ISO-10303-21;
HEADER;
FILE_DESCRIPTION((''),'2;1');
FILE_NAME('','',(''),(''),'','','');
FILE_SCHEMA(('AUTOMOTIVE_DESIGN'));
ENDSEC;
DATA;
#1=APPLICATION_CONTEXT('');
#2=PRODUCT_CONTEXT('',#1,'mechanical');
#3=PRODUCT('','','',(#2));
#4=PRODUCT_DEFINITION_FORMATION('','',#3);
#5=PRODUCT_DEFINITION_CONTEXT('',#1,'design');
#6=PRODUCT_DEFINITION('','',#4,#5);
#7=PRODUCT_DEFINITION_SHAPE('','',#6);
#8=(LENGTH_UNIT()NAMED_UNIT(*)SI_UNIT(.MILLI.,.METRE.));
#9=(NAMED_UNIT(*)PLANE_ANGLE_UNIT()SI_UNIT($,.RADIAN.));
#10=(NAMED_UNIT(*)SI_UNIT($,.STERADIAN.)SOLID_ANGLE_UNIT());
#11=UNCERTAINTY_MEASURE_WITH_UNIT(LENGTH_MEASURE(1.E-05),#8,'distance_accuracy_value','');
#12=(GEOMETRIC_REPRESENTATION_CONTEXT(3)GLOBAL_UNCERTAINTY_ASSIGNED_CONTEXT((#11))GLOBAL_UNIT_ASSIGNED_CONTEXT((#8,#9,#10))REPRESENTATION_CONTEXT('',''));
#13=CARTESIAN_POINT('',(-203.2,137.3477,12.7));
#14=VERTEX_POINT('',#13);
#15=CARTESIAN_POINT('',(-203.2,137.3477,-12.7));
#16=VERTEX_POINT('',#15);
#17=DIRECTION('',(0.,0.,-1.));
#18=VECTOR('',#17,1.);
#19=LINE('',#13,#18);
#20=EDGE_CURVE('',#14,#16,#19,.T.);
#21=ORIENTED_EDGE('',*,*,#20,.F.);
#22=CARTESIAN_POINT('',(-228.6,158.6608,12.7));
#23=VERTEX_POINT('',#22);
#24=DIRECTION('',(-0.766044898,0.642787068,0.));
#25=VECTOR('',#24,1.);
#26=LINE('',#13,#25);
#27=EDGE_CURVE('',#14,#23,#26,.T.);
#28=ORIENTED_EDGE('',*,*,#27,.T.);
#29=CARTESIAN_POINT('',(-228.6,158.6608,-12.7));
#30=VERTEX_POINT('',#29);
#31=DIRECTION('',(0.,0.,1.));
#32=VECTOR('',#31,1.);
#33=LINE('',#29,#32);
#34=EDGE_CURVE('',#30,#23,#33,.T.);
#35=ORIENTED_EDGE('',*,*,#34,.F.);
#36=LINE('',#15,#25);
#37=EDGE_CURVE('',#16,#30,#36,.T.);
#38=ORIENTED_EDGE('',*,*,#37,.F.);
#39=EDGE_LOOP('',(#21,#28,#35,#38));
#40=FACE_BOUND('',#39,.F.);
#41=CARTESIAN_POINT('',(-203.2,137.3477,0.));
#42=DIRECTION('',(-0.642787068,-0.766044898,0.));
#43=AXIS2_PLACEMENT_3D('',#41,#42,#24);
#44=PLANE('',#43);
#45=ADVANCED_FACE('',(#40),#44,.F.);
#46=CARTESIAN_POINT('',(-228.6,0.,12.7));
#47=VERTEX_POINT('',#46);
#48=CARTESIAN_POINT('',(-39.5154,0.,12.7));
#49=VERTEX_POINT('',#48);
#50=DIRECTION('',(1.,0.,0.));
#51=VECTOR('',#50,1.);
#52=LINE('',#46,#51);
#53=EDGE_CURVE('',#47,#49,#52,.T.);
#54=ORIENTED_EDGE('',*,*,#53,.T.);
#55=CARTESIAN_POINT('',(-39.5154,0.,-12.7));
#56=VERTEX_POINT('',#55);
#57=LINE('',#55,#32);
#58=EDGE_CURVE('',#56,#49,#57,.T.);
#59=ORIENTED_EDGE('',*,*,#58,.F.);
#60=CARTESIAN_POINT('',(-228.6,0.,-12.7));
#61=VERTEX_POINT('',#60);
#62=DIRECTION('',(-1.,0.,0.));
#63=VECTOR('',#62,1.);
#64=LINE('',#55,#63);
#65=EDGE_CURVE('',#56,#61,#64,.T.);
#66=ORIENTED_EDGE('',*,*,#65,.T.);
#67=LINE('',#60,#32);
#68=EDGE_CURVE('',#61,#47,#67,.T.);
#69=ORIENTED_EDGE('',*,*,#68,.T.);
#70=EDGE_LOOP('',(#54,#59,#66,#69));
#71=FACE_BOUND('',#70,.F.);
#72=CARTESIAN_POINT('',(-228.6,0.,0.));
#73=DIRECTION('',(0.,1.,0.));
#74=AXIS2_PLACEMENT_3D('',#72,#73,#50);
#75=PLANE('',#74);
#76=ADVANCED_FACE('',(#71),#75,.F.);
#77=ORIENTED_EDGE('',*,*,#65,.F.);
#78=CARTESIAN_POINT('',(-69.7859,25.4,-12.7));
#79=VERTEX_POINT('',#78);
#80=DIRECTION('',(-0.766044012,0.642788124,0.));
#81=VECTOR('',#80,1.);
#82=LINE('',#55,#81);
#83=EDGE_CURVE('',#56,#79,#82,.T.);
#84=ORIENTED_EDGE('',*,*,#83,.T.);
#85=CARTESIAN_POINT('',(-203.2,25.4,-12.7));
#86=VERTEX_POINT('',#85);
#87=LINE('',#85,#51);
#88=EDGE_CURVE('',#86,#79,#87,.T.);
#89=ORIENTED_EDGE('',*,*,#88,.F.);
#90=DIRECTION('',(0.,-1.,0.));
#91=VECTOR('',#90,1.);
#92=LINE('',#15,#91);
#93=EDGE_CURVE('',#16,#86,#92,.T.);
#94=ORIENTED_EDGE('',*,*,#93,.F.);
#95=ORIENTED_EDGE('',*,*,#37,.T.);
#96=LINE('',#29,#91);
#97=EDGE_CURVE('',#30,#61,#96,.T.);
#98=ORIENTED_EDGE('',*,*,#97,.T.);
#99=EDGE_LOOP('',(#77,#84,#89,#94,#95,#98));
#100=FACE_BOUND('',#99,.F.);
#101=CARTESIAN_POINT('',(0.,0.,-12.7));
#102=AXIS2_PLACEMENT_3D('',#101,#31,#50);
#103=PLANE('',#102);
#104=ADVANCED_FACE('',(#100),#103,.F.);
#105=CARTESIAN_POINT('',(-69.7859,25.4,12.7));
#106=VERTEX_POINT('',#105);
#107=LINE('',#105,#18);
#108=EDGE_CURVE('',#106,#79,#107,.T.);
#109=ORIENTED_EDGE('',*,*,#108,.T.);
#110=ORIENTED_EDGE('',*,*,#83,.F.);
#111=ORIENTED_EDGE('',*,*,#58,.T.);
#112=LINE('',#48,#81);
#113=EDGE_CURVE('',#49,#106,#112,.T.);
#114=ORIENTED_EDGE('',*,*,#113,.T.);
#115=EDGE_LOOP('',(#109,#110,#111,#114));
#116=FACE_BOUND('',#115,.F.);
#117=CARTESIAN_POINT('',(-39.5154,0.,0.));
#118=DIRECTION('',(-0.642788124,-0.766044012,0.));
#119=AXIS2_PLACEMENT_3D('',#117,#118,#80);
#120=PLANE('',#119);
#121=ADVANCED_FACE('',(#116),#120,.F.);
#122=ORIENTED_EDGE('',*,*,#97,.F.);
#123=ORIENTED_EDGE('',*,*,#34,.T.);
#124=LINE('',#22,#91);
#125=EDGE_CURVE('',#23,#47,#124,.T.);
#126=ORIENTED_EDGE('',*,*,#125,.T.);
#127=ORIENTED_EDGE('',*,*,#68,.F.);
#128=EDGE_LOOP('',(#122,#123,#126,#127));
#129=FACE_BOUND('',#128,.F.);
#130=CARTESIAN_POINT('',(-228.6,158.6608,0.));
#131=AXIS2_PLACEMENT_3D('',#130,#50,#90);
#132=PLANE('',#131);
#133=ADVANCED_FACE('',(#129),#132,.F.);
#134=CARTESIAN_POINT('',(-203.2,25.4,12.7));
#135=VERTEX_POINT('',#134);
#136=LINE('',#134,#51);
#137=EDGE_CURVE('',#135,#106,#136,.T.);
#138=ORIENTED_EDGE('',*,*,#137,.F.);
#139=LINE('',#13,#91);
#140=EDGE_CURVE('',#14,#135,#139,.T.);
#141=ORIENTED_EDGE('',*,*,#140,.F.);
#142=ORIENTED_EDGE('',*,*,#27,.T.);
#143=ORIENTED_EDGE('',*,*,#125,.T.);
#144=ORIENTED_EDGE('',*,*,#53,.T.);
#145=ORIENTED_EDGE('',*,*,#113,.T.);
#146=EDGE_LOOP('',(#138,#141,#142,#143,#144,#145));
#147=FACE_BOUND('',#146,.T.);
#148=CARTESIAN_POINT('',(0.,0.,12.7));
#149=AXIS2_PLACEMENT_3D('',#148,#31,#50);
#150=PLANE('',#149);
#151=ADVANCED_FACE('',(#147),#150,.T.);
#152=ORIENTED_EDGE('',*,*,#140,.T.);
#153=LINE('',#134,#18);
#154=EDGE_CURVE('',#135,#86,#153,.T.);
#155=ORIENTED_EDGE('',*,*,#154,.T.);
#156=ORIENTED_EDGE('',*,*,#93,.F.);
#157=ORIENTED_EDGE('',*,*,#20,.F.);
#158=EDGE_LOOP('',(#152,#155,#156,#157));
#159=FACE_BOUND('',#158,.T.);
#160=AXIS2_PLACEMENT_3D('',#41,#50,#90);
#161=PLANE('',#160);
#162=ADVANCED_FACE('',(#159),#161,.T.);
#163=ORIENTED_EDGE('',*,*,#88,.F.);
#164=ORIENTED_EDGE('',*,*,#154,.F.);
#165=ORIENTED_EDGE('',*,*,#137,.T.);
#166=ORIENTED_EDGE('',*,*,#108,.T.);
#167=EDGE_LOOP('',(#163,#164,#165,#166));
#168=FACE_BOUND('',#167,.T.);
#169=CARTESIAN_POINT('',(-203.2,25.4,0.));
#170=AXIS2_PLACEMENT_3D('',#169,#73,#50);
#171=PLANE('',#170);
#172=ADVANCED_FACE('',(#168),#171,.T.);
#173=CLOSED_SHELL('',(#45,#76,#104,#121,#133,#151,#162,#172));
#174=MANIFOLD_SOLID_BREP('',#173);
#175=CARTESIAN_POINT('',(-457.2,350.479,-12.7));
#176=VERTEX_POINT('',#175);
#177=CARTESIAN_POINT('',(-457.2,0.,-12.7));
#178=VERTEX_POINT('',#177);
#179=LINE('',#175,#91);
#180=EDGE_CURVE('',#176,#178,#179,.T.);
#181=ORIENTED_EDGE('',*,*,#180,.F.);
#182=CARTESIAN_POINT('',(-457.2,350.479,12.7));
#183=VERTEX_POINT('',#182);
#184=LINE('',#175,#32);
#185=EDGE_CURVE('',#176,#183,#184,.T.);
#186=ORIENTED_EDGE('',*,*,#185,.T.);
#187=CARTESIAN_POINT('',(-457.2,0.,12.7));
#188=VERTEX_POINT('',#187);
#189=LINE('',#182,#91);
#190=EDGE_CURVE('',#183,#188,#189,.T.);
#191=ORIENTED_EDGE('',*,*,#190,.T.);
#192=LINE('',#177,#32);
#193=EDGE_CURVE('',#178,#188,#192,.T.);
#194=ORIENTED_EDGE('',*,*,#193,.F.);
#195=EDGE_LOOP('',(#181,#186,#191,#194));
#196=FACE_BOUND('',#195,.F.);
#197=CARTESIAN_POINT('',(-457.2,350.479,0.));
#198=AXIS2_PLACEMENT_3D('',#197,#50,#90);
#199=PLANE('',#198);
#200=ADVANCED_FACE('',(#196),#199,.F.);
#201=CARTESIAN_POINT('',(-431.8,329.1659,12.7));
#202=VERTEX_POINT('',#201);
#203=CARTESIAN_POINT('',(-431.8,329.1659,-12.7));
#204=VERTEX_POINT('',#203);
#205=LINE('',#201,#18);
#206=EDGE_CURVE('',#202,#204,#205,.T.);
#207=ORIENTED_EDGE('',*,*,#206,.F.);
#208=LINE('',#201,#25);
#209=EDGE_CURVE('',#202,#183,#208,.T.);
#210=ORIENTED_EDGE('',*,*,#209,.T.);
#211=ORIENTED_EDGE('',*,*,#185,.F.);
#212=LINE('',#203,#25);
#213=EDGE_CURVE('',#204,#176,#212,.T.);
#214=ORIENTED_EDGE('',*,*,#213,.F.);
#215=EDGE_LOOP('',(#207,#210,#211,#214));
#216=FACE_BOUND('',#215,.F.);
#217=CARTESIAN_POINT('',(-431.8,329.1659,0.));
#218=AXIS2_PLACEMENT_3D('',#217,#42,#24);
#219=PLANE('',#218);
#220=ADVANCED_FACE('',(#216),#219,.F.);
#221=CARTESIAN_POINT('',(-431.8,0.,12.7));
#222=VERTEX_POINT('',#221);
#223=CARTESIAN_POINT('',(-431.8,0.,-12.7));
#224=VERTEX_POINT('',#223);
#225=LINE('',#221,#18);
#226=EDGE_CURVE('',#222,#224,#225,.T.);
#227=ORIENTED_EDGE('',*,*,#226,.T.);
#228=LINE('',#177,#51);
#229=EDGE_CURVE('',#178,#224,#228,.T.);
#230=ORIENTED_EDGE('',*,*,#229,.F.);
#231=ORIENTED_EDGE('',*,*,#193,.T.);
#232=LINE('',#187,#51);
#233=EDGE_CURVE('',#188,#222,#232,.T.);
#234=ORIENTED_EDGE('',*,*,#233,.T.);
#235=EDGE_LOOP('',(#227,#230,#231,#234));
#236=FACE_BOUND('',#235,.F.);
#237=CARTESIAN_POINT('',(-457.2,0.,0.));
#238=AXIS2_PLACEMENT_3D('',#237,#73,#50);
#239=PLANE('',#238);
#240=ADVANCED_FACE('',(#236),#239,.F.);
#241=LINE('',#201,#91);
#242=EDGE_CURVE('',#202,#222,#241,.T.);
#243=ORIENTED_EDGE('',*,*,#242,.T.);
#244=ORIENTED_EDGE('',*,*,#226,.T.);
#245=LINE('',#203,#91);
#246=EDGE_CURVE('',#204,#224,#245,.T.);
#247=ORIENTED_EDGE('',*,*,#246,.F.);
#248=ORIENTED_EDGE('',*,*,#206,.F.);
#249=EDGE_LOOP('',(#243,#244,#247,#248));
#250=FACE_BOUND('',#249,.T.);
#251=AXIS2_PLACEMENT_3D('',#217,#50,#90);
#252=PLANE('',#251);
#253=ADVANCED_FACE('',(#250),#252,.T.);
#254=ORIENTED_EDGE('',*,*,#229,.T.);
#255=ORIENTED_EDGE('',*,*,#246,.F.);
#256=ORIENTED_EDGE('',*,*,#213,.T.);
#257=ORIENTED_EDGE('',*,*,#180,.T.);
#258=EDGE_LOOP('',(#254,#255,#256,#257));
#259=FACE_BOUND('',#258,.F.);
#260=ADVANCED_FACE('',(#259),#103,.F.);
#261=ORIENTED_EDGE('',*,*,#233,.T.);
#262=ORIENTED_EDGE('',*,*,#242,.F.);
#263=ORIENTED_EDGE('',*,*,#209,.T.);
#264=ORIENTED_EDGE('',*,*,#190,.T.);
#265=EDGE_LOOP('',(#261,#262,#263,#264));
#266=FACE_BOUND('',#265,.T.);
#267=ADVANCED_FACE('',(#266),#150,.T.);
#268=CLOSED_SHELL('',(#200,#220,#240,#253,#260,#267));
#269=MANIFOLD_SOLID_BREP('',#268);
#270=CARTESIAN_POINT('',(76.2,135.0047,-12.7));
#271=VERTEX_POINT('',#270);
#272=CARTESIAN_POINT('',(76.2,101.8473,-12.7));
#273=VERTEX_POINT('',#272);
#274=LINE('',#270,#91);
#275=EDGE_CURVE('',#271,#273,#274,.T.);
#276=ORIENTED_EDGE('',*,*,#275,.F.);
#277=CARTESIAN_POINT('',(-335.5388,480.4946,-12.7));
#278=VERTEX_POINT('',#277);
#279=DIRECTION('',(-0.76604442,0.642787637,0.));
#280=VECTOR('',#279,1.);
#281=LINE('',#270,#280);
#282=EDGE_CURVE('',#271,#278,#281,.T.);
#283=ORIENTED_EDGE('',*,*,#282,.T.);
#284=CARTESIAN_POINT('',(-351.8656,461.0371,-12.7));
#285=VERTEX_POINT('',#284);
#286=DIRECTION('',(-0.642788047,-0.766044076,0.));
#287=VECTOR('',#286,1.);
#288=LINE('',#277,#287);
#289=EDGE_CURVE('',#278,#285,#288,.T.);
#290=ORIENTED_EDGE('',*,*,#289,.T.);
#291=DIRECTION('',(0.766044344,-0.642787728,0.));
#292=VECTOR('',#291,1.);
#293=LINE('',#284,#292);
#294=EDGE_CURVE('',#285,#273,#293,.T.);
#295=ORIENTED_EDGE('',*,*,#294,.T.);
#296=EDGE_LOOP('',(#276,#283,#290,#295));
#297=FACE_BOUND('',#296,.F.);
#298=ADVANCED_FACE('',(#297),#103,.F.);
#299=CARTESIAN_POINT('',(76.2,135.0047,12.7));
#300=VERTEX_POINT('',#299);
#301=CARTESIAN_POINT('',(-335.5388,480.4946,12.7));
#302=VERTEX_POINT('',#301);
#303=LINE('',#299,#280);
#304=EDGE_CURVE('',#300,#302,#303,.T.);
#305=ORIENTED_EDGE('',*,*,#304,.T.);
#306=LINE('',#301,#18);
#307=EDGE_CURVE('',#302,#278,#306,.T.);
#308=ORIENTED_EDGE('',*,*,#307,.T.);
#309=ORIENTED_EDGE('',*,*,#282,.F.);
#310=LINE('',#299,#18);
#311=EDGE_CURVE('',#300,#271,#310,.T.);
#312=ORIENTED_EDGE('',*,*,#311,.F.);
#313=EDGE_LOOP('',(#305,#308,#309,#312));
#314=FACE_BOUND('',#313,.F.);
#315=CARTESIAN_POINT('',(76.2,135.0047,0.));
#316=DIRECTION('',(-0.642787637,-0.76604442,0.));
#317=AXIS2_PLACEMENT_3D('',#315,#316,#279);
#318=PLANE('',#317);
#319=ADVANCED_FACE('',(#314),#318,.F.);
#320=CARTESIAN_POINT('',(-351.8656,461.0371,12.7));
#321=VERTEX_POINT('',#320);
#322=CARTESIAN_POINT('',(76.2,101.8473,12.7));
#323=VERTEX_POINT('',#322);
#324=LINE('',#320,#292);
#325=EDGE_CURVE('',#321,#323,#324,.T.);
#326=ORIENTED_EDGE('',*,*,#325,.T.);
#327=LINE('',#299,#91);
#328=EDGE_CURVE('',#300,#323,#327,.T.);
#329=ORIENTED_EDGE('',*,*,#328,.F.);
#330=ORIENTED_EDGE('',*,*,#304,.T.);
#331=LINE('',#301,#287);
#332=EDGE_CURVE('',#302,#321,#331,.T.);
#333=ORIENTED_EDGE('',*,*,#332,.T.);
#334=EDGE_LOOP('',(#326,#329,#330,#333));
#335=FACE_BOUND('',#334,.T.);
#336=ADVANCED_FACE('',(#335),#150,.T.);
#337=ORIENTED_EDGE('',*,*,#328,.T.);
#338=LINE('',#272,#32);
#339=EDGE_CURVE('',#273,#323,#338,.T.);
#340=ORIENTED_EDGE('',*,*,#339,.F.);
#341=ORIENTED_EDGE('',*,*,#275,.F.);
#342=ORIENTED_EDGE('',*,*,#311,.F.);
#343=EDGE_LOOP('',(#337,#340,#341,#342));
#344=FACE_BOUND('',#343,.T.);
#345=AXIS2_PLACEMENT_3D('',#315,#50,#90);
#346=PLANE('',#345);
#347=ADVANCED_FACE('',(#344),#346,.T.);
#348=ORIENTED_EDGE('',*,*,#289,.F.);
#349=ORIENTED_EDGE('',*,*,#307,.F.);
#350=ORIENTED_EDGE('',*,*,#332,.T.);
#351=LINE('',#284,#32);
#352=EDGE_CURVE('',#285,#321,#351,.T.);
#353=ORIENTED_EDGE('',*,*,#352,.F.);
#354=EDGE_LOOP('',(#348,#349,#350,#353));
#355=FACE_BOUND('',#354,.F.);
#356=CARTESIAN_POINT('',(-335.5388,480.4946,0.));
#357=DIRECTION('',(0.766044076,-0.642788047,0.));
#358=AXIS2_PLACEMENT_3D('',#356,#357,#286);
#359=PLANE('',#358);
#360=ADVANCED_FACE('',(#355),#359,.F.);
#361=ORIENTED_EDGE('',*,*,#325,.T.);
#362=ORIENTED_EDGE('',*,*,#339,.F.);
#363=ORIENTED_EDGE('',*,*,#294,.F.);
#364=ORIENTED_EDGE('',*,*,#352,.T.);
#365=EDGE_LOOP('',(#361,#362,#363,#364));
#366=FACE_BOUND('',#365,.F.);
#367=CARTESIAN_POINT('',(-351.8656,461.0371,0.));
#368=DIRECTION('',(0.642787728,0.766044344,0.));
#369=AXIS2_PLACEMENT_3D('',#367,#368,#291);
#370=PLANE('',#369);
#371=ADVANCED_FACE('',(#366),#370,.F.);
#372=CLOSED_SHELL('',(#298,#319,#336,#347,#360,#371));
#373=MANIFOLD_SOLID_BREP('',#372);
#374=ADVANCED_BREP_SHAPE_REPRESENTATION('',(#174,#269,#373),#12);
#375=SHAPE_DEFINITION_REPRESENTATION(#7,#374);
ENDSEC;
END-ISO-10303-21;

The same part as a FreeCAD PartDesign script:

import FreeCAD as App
import Part
import Sketcher
from FreeCAD import Vector
Q = App.Units.Quantity


def add_polygon(sketch, points):
    """Adds a closed chain of lines whose ends are joined by coincident constraints."""
    first, n = sketch.GeometryCount, len(points)
    for a, b in zip(points, points[1:] + points[:1]):
        sketch.addGeometry(Part.LineSegment(App.Vector(*a, 0), App.Vector(*b, 0)), False)
    for i in range(n):
        sketch.addConstraint(Sketcher.Constraint("Coincident", first + i, 2, first + (i + 1) % n, 1))

doc = App.newDocument("Part")
body = doc.addObject("PartDesign::Body", "Body")
body.AllowCompound = True

# Sketch on XY plane
sketch1 = body.newObject("Sketcher::SketchObject", "Sketch")
sketch1.AttachmentSupport = (doc.getObject("XY_Plane"), [""])
sketch1.MapMode = "FlatFace"
add_polygon(sketch1, [(-431.8, 329.1659), (-457.2, 350.479), (-457.2, 0), (-431.8, 0)])  # lines 0-3
add_polygon(sketch1, [(-203.2, 137.3477), (-228.6, 158.6608), (-228.6, 0), (-39.5154, 0), (-69.7859, 25.4), (-203.2, 25.4)])  # lines 4-9
add_polygon(sketch1, [(-335.5388, 480.4946), (-351.8656, 461.0371), (76.2, 101.8473), (76.2, 135.0047)])  # lines 10-13
sketch1.addConstraint([
    Sketcher.Constraint("Vertical", 1),
    Sketcher.Constraint("Horizontal", 2),
    Sketcher.Constraint("Vertical", 3),
    Sketcher.Constraint("Vertical", 5),
    Sketcher.Constraint("Horizontal", 6),
    Sketcher.Constraint("Horizontal", 8),
    Sketcher.Constraint("Vertical", 9),
    Sketcher.Constraint("Vertical", 12),
    Sketcher.Constraint("PointOnObject", 1, 2, -1),
    Sketcher.Constraint("PointOnObject", 5, 2, -1),
    Sketcher.Constraint("Parallel", 0, 4),
    Sketcher.Constraint("Parallel", 4, 7),
    Sketcher.Constraint("Perpendicular", 7, 10),
    Sketcher.Constraint("Perpendicular", 10, 11),
    Sketcher.Constraint("Parallel", 11, 13),
    Sketcher.Constraint("Equal", 0, 4),
    Sketcher.Constraint("DistanceX", 2, 1, 2, 2, Q("1 in")),
    Sketcher.Constraint("Distance", 10, Q("1 in")),
    Sketcher.Constraint("Distance", 11, Q("22 in")),
    Sketcher.Constraint("DistanceY", -1, 1, 7, 2, Q("1 in")),
    Sketcher.Constraint("DistanceX", -1, 1, 11, 2, Q("3 in")),
    Sketcher.Constraint("DistanceX", 0, 2, -1, 1, Q("18 in")),
    Sketcher.Constraint("DistanceX", 4, 2, -1, 1, Q("9 in")),
    Sketcher.Constraint("Angle", 0, Q("140 deg")),
    Sketcher.Constraint("DistanceY", 5, 2, 5, 1, Q("6.2465 in")),
    Sketcher.Constraint("DistanceX", 6, 1, 6, 2, 189.0846),
    Sketcher.Constraint("DistanceY", 1, 2, 1, 1, 350.479),
    Sketcher.Constraint("DistanceY", -1, 1, 13, 2, Q("18.9171 in")),
])
pad1 = body.newObject("PartDesign::Pad", "Pad")
pad1.Profile = sketch1
pad1.Length = Q("1 in")
pad1.Midplane = True

doc.recompute()
